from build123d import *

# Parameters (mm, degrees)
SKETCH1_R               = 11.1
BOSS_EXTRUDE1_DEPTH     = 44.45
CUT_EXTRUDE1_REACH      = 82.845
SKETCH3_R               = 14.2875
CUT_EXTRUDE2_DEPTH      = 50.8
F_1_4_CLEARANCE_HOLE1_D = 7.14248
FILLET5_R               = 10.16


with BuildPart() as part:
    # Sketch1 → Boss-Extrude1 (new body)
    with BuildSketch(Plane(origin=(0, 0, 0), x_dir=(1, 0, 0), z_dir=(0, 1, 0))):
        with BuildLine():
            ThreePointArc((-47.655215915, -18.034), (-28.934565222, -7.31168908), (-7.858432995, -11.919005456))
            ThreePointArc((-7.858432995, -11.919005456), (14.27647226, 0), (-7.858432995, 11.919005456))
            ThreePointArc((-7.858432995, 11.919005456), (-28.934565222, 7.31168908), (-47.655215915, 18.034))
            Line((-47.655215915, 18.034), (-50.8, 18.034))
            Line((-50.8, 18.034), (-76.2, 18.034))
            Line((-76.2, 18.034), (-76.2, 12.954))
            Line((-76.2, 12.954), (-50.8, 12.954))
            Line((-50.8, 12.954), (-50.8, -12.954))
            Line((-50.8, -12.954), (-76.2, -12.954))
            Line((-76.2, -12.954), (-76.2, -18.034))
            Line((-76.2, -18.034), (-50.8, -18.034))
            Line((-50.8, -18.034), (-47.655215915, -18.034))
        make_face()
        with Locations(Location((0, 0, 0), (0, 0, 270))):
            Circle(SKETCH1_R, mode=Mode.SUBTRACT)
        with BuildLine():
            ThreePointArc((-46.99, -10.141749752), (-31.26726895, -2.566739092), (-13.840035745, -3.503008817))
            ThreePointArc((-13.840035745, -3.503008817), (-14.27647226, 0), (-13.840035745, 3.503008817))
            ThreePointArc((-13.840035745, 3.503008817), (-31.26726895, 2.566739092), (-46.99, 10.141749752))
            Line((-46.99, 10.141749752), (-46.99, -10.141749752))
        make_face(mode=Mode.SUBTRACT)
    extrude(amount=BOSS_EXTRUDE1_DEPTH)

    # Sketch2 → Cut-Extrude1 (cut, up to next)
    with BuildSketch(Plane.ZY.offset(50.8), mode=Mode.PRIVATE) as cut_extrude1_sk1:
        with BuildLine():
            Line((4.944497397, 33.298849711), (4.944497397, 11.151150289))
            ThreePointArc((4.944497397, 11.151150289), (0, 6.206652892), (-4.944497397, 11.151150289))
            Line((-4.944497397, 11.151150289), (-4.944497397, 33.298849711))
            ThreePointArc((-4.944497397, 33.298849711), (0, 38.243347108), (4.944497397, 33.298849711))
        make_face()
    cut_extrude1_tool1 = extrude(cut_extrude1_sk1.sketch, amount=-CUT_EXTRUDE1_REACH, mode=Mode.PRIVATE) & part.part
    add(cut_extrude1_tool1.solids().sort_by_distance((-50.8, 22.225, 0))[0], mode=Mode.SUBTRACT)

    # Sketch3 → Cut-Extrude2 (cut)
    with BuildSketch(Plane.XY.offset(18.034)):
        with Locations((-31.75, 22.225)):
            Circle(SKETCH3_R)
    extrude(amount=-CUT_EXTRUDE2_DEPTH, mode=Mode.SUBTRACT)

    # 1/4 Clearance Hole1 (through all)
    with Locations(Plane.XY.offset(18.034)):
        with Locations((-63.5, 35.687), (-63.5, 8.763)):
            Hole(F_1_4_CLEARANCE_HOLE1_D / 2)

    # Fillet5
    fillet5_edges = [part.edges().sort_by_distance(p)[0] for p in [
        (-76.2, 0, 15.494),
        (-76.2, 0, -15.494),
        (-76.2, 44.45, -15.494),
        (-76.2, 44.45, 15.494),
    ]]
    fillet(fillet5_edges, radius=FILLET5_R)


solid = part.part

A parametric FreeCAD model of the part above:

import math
import FreeCAD as App
import Part
import Sketcher
from FreeCAD import Vector
Q = App.Units.Quantity


def edges_at(feature, points):
    """Names of the edges that pass closest to the given points."""
    edges = feature.Shape.Edges
    near = lambda p: min(range(len(edges)), key=lambda i: edges[i].distToShape(Part.Vertex(*p))[0])
    return sorted({f"Edge{near(p) + 1}" for p in points})

doc = App.newDocument("Part")
params = doc.addObject("Spreadsheet::Sheet", "Params")
for row, (alias, value) in enumerate([
    ("sketch1_width", "1 in"),
    ("sketch1_height", "0.2 in"),
    ("sketch1_height2", "1.02 in"),
    ("pad1_length", "1.75 in"),
    ("sketch3_diameter", "1.125 in"),
    ("pocket2_length", "2 in"),
    ("hole_diameter", "0.2812 in"),
    ("fillet_radius", "0.4 in"),
], start=1):
    params.set(f"A{row}", alias)
    params.set(f"B{row}", "=" + value)
    params.setAlias(f"B{row}", alias)

body = doc.addObject("PartDesign::Body", "Body")

# Sketch on XZ plane
sketch1 = doc.addObject("Sketcher::SketchObject", "Sketch")
body.addObject(sketch1)
sketch1.AttachmentSupport = (doc.XZ_Plane, [""])
sketch1.MapMode = "FlatFace"
sketch1.addGeometry(Part.ArcOfCircle(Part.Circle(Vector(-24, 37, 0), Vector(0, 0, 1), 30), math.radians(-141), math.radians(-57)), False)
sketch1.addGeometry(Part.ArcOfCircle(Part.Circle(Vector(0, 0, 0), Vector(0, 0, 1), 14), math.radians(-123), math.radians(123)), False)
sketch1.addGeometry(Part.ArcOfCircle(Part.Circle(Vector(-24, -37, 0), Vector(0, 0, 1), 30), math.radians(57), math.radians(141)), False)
sketch1.addGeometry(Part.LineSegment(Vector(-48, -18, 0), Vector(-76, -18, 0)), False)
sketch1.addGeometry(Part.LineSegment(Vector(-76, -18, 0), Vector(-76, -13, 0)), False)
sketch1.addGeometry(Part.LineSegment(Vector(-76, -13, 0), Vector(-51, -13, 0)), False)
sketch1.addGeometry(Part.LineSegment(Vector(-51, -13, 0), Vector(-51, 13, 0)), False)
sketch1.addGeometry(Part.LineSegment(Vector(-51, 13, 0), Vector(-76, 13, 0)), False)
sketch1.addGeometry(Part.LineSegment(Vector(-76, 13, 0), Vector(-76, 18, 0)), False)
sketch1.addGeometry(Part.LineSegment(Vector(-76, 18, 0), Vector(-48, 18, 0)), False)
sketch1.addGeometry(Part.ArcOfCircle(Part.Circle(Vector(-24, 37, 0), Vector(0, 0, 1), 35), math.radians(-130), math.radians(-73)), False)
sketch1.addGeometry(Part.LineSegment(Vector(-47, 10, 0), Vector(-47, -10, 0)), False)
sketch1.addGeometry(Part.ArcOfCircle(Part.Circle(Vector(-24, -37, 0), Vector(0, 0, 1), 35), math.radians(73), math.radians(130)), False)
sketch1.addGeometry(Part.ArcOfCircle(Part.Circle(Vector(0, 0, 0), Vector(0, 0, 1), 14), math.radians(166), math.radians(194)), False)
sketch1.addGeometry(Part.Circle(Vector(0, 0, 0), Vector(0, 0, 1), 11), False)
sketch1.addConstraint(Sketcher.Constraint("Tangent", 0, 2, 1, 2))
sketch1.addConstraint(Sketcher.Constraint("Tangent", 1, 1, 2, 1))
sketch1.addConstraint(Sketcher.Constraint("Coincident", 2, 2, 3, 1))
sketch1.addConstraint(Sketcher.Constraint("Coincident", 3, 2, 4, 1))
sketch1.addConstraint(Sketcher.Constraint("Coincident", 4, 2, 5, 1))
sketch1.addConstraint(Sketcher.Constraint("Coincident", 5, 2, 6, 1))
sketch1.addConstraint(Sketcher.Constraint("Coincident", 6, 2, 7, 1))
sketch1.addConstraint(Sketcher.Constraint("Coincident", 7, 2, 8, 1))
sketch1.addConstraint(Sketcher.Constraint("Coincident", 8, 2, 9, 1))
sketch1.addConstraint(Sketcher.Constraint("Coincident", 9, 2, 0, 1))
sketch1.addConstraint(Sketcher.Constraint("Coincident", 10, 1, 11, 1))
sketch1.addConstraint(Sketcher.Constraint("Coincident", 11, 2, 12, 2))
sketch1.addConstraint(Sketcher.Constraint("Coincident", 12, 1, 13, 2))
sketch1.addConstraint(Sketcher.Constraint("Coincident", 13, 1, 10, 2))
sketch1.addConstraint(Sketcher.Constraint("Horizontal", 3))
sketch1.addConstraint(Sketcher.Constraint("Vertical", 4))
sketch1.addConstraint(Sketcher.Constraint("Horizontal", 5))
sketch1.addConstraint(Sketcher.Constraint("Vertical", 6))
sketch1.addConstraint(Sketcher.Constraint("Horizontal", 7))
sketch1.addConstraint(Sketcher.Constraint("Vertical", 8))
sketch1.addConstraint(Sketcher.Constraint("Horizontal", 9))
sketch1.addConstraint(Sketcher.Constraint("Vertical", 11))
sketch1.addConstraint(Sketcher.Constraint("Coincident", 1, 3, -1, 1))
sketch1.addConstraint(Sketcher.Constraint("Coincident", 13, 3, -1, 1))
sketch1.addConstraint(Sketcher.Constraint("Coincident", 14, 3, -1, 1))
sketch1.addConstraint(Sketcher.Constraint("Coincident", 10, 3, 0, 3))
sketch1.addConstraint(Sketcher.Constraint("Coincident", 12, 3, 2, 3))
sketch1.addConstraint(Sketcher.Constraint("Equal", 0, 2))
sketch1.addConstraint(Sketcher.Constraint("Equal", 10, 12))
sketch1.addConstraint(Sketcher.Constraint("Equal", 1, 13))
sketch1.addConstraint(Sketcher.Constraint("Symmetric", 4, 2, 7, 2, -1))
sketch1.addConstraint(Sketcher.Constraint("Symmetric", 2, 2, 9, 2, -1))
sketch1.addConstraint(Sketcher.Constraint("DistanceX", 5, 1, 5, 2, Q("1 in")))
sketch1.addConstraint(Sketcher.Constraint("DistanceY", 4, 1, 4, 2, Q("0.2 in")))
sketch1.addConstraint(Sketcher.Constraint("DistanceX", 3, 2, -1, 1, Q("3 in")))
sketch1.addConstraint(Sketcher.Constraint("DistanceY", 6, 1, 6, 2, Q("1.02 in")))
sketch1.addConstraint(Sketcher.Constraint("Diameter", 14, 22.2))
sketch1.addConstraint(Sketcher.Constraint("DistanceX", 10, 1, -1, 1, Q("1.85 in")))
sketch1.addConstraint(Sketcher.Constraint("Radius", 0, 30.009322))
sketch1.addConstraint(Sketcher.Constraint("Radius", 10, 35.089322))
sketch1.addConstraint(Sketcher.Constraint("DistanceY", 11, 2, 11, 1, 20.2835))
sketch1.addConstraint(Sketcher.Constraint("Radius", 1, 14.276472))
sketch1.setExpression("Constraints[32]", "Params.sketch1_width")
sketch1.setExpression("Constraints[33]", "Params.sketch1_height")
sketch1.setExpression("Constraints[35]", "Params.sketch1_height2")
pad1 = doc.addObject("PartDesign::Pad", "Pad")
body.addObject(pad1)
pad1.Profile = sketch1
pad1.setExpression("Length", "Params.pad1_length")
pad1.Reversed = True

# Sketch on YZ plane
sketch2 = doc.addObject("Sketcher::SketchObject", "Sketch001")
body.addObject(sketch2)
sketch2.AttachmentSupport = (doc.YZ_Plane, [""])
sketch2.MapMode = "FlatFace"
sketch2.AttachmentOffset = App.Placement(Vector(0, 0, -2 * 25.4), App.Rotation())
sketch2.addGeometry(Part.LineSegment(Vector(11.2, 4.9, 0), Vector(33.3, 4.9, 0)), False)
sketch2.addGeometry(Part.ArcOfCircle(Part.Circle(Vector(33.3, 0, 0), Vector(0, 0, 1), 4.9), math.radians(-90), math.radians(90)), False)
sketch2.addGeometry(Part.LineSegment(Vector(33.3, -4.9, 0), Vector(11.2, -4.9, 0)), False)
sketch2.addGeometry(Part.ArcOfCircle(Part.Circle(Vector(11.2, 0, 0), Vector(0, 0, 1), 4.9), math.radians(90), math.radians(270)), False)
sketch2.addConstraint(Sketcher.Constraint("Tangent", 0, 2, 1, 2))
sketch2.addConstraint(Sketcher.Constraint("Tangent", 1, 1, 2, 1))
sketch2.addConstraint(Sketcher.Constraint("Tangent", 2, 2, 3, 2))
sketch2.addConstraint(Sketcher.Constraint("Tangent", 3, 1, 0, 1))
sketch2.addConstraint(Sketcher.Constraint("Horizontal", 0))
sketch2.addConstraint(Sketcher.Constraint("Horizontal", 2))
sketch2.addConstraint(Sketcher.Constraint("PointOnObject", 1, 3, -1))
sketch2.addConstraint(Sketcher.Constraint("DistanceX", 0, 1, 0, 2, 22.147699))
sketch2.addConstraint(Sketcher.Constraint("Radius", 1, 4.944497))
sketch2.addConstraint(Sketcher.Constraint("DistanceX", -1, 1, 1, 3, 33.29885))
pocket1 = doc.addObject("PartDesign::Pocket", "Pocket")
body.addObject(pocket1)
pocket1.Profile = sketch2
pocket1.Type = "UpToFirst"
pocket1.Reversed = True

# Sketch on XY plane
sketch3 = doc.addObject("Sketcher::SketchObject", "Sketch002")
body.addObject(sketch3)
sketch3.AttachmentSupport = (doc.XY_Plane, [""])
sketch3.MapMode = "FlatFace"
sketch3.AttachmentOffset = App.Placement(Vector(0, 0, 0.71 * 25.4), App.Rotation())
sketch3.addGeometry(Part.Circle(Vector(-32, 22, 0), Vector(0, 0, 1), 14), False)
sketch3.addConstraint(Sketcher.Constraint("Diameter", 0, Q("1.125 in")))
sketch3.addConstraint(Sketcher.Constraint("DistanceX", 0, 3, -1, 1, Q("1.25 in")))
sketch3.addConstraint(Sketcher.Constraint("DistanceY", -1, 1, 0, 3, Q("0.875 in")))
sketch3.setExpression("Constraints[0]", "Params.sketch3_diameter")
pocket2 = doc.addObject("PartDesign::Pocket", "Pocket001")
body.addObject(pocket2)
pocket2.Profile = sketch3
pocket2.setExpression("Length", "Params.pocket2_length")

# Sketch on XY plane
sketch4 = doc.addObject("Sketcher::SketchObject", "Sketch003")
body.addObject(sketch4)
sketch4.AttachmentSupport = (doc.XY_Plane, [""])
sketch4.MapMode = "FlatFace"
sketch4.AttachmentOffset = App.Placement(Vector(0, 0, 0.71 * 25.4), App.Rotation())
sketch4.addGeometry(Part.Circle(Vector(-63.5, 35.7, 0), Vector(0, 0, 1), 3.6), False)
sketch4.addGeometry(Part.Circle(Vector(-63.5, 8.8, 0), Vector(0, 0, 1), 3.6), False)
sketch4.addConstraint(Sketcher.Constraint("Equal", 0, 1))
sketch4.addConstraint(Sketcher.Constraint("Vertical", 0, 3, 1, 3))
sketch4.addConstraint(Sketcher.Constraint("Diameter", 0, Q("0.2812 in")))
sketch4.addConstraint(Sketcher.Constraint("DistanceX", 0, 3, -1, 1, Q("2.5 in")))
sketch4.addConstraint(Sketcher.Constraint("DistanceY", 1, 3, 0, 3, Q("1.06 in")))
sketch4.addConstraint(Sketcher.Constraint("DistanceY", -1, 1, 0, 3, Q("1.405 in")))
doc.recompute()
hole = doc.addObject("PartDesign::Hole", "Hole")
body.addObject(hole)
hole.Profile = sketch4
hole.ThreadType = "None"
hole.setExpression("Diameter", "Params.hole_diameter")
hole.DepthType = "ThroughAll"
doc.recompute()

fillet = doc.addObject("PartDesign::Fillet", "Fillet")
body.addObject(fillet)
fillet.Base = (hole, edges_at(hole, [
    (-76.2, 0, 15.494),
    (-76.2, 0, -15.494),
    (-76.2, 44.45, -15.494),
    (-76.2, 44.45, 15.494),
]))
fillet.setExpression("Radius", "Params.fillet_radius")

doc.recompute()
